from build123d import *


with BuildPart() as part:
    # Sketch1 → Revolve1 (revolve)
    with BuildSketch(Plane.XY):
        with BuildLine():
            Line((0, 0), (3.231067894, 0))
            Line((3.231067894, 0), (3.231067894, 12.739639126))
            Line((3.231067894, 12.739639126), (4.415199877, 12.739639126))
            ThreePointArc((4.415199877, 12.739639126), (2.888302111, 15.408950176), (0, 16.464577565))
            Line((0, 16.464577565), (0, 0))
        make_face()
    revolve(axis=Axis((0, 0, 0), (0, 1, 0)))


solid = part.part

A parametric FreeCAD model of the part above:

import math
import FreeCAD as App
import Part
import Sketcher
from FreeCAD import Vector
Q = App.Units.Quantity

doc = App.newDocument("Part")
body = doc.addObject("PartDesign::Body", "Body")

# Sketch on XY plane
sketch1 = body.newObject("Sketcher::SketchObject", "Sketch")
sketch1.AttachmentSupport = (doc.getObject("XY_Plane"), [""])
sketch1.MapMode = "FlatFace"
sketch1.addGeometry([
    Part.LineSegment(Vector(0, 0, 0), Vector(3.2, 0, 0)),  # 0
    Part.LineSegment(Vector(3.2, 0, 0), Vector(3.2, 12.7, 0)),  # 1
    Part.LineSegment(Vector(3.2, 12.7, 0), Vector(4.4, 12.7, 0)),  # 2
    Part.ArcOfCircle(Part.Circle(Vector(0, 12, 0), Vector(0, 0, 1), 4.5), math.radians(10), math.radians(90)),  # 3
    Part.LineSegment(Vector(0, 16.5, 0), Vector(0, 0, 0)),  # 4
], False)
sketch1.addConstraint([
    Sketcher.Constraint("Coincident", 0, 2, 1, 1),
    Sketcher.Constraint("Coincident", 1, 2, 2, 1),
    Sketcher.Constraint("Coincident", 2, 2, 3, 1),
    Sketcher.Constraint("Coincident", 3, 2, 4, 1),
    Sketcher.Constraint("Coincident", 4, 2, 0, 1),
    Sketcher.Constraint("Horizontal", 0),
    Sketcher.Constraint("Vertical", 1),
    Sketcher.Constraint("Horizontal", 2),
    Sketcher.Constraint("Vertical", 4),
    Sketcher.Constraint("Coincident", 4, 2, -1, 1),
    Sketcher.Constraint("PointOnObject", 3, 3, -2),
    Sketcher.Constraint("Radius", 3, Q("4.479155 mm")),
    Sketcher.Constraint("DistanceX", 2, 1, 2, 2, Q("1.184132 mm")),
    Sketcher.Constraint("DistanceY", 1, 1, 1, 2, Q("12.739639 mm")),
    Sketcher.Constraint("DistanceX", -1, 1, 2, 2, Q("4.4152 mm")),
])
revolution = body.newObject("PartDesign::Revolution", "Revolution")
revolution.Profile = sketch1
revolution.ReferenceAxis = (sketch1, ["V_Axis"])
revolution.Angle = 360

doc.recompute()
